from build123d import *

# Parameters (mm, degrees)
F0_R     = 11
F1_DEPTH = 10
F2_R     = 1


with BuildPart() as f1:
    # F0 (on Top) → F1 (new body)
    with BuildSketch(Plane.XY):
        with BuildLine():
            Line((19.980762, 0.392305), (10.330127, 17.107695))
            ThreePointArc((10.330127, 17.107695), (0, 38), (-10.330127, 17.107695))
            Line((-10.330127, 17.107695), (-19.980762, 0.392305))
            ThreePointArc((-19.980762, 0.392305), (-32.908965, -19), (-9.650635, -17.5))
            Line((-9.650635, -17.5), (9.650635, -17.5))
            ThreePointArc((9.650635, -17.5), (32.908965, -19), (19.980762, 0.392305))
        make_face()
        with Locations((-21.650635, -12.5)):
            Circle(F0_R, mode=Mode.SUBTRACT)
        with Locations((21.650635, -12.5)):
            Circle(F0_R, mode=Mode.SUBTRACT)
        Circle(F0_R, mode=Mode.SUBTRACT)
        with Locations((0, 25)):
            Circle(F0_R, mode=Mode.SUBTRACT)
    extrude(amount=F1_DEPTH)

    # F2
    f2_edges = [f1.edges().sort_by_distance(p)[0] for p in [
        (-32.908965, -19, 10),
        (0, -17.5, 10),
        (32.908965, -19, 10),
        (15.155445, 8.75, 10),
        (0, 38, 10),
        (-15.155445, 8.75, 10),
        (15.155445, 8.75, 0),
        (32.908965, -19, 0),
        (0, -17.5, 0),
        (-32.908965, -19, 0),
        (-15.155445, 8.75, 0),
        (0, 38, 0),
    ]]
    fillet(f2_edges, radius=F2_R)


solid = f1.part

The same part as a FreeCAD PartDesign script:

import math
import FreeCAD as App
import Part
import Sketcher

V = App.Vector
Q = App.Units.Quantity


def edges_at(feature, points):
    """Names of the edges that pass closest to the given points."""
    edges = feature.Shape.Edges
    near = lambda p: min(range(len(edges)), key=lambda i: edges[i].distToShape(Part.Vertex(*p))[0])
    return sorted({f"Edge{near(p) + 1}" for p in points})

doc = App.newDocument("Part")
body = doc.addObject("PartDesign::Body", "Body")

# Sketch on XY plane
sketch1 = body.newObject("Sketcher::SketchObject", "Sketch")
sketch1.AttachmentSupport = (doc.getObject("XY_Plane"), [""])
sketch1.MapMode = "FlatFace"
sketch1.addGeometry(Part.LineSegment(V(20, 0, 0), V(10, 17, 0)), False)
sketch1.addGeometry(Part.ArcOfCircle(Part.Circle(V(0, 25, 0), V(0, 0, 1), 13), math.radians(-37), math.radians(217)), False)
sketch1.addGeometry(Part.LineSegment(V(-10, 17, 0), V(-20, 0, 0)), False)
sketch1.addGeometry(Part.ArcOfCircle(Part.Circle(V(-22, -12, 0), V(0, 0, 1), 13), math.radians(83), math.radians(337)), False)
sketch1.addGeometry(Part.LineSegment(V(-10, -18, 0), V(10, -18, 0)), False)
sketch1.addGeometry(Part.ArcOfCircle(Part.Circle(V(22, -12, 0), V(0, 0, 1), 13), math.radians(-157), math.radians(97)), False)
sketch1.addGeometry(Part.Circle(V(-22, -12, 0), V(0, 0, 1), 11), False)
sketch1.addGeometry(Part.Circle(V(22, -12, 0), V(0, 0, 1), 11), False)
sketch1.addGeometry(Part.Circle(V(0, 0, 0), V(0, 0, 1), 11), False)
sketch1.addGeometry(Part.Circle(V(0, 25, 0), V(0, 0, 1), 11), False)
sketch1.addConstraint(Sketcher.Constraint("Coincident", 0, 2, 1, 1))
sketch1.addConstraint(Sketcher.Constraint("Coincident", 1, 2, 2, 1))
sketch1.addConstraint(Sketcher.Constraint("Coincident", 2, 2, 3, 1))
sketch1.addConstraint(Sketcher.Constraint("Coincident", 3, 2, 4, 1))
sketch1.addConstraint(Sketcher.Constraint("Coincident", 4, 2, 5, 1))
sketch1.addConstraint(Sketcher.Constraint("Coincident", 5, 2, 0, 1))
sketch1.addConstraint(Sketcher.Constraint("Horizontal", 4))
sketch1.addConstraint(Sketcher.Constraint("Coincident", 8, 3, -1, 1))
sketch1.addConstraint(Sketcher.Constraint("Coincident", 6, 3, 3, 3))
sketch1.addConstraint(Sketcher.Constraint("Coincident", 7, 3, 5, 3))
sketch1.addConstraint(Sketcher.Constraint("Coincident", 9, 3, 1, 3))
sketch1.addConstraint(Sketcher.Constraint("Equal", 1, 3))
sketch1.addConstraint(Sketcher.Constraint("Equal", 3, 5))
sketch1.addConstraint(Sketcher.Constraint("Equal", 6, 7))
sketch1.addConstraint(Sketcher.Constraint("Equal", 7, 8))
sketch1.addConstraint(Sketcher.Constraint("Equal", 8, 9))
sketch1.addConstraint(Sketcher.Constraint("Symmetric", 3, 3, 5, 3, -2))
sketch1.addConstraint(Sketcher.Constraint("Symmetric", 0, 2, 1, 2, -2))
sketch1.addConstraint(Sketcher.Constraint("Horizontal", 2, 2, 5, 2))
sketch1.addConstraint(Sketcher.Constraint("Diameter", 6, Q("22 mm")))
sketch1.addConstraint(Sketcher.Constraint("Radius", 1, Q("13 mm")))
sketch1.addConstraint(Sketcher.Constraint("Angle", 0, Q("120 deg")))
sketch1.addConstraint(Sketcher.Constraint("DistanceY", -1, 1, 1, 3, Q("25 mm")))
sketch1.addConstraint(Sketcher.Constraint("DistanceX", 3, 3, 3, 2, Q("12 mm")))
sketch1.addConstraint(Sketcher.Constraint("DistanceY", 3, 3, -1, 1, Q("12.5 mm")))
sketch1.addConstraint(Sketcher.Constraint("DistanceX", 4, 1, 4, 2, Q("19.30127 mm")))
sketch1.addConstraint(Sketcher.Constraint("Distance", 0, Q("19.30127 mm")))
pad1 = body.newObject("PartDesign::Pad", "Pad")
pad1.Profile = sketch1
pad1.Length = 10
doc.recompute()

fillet = body.newObject("PartDesign::Fillet", "Fillet")
fillet.Base = (pad1, edges_at(pad1, [
    (-32.909, -19, 10),
    (0, -17.5, 10),
    (32.909, -19, 10),
    (15.155, 8.75, 10),
    (0, 38, 10),
    (-15.155, 8.75, 10),
    (15.155, 8.75, 0),
    (32.909, -19, 0),
    (0, -17.5, 0),
    (-32.909, -19, 0),
    (-15.155, 8.75, 0),
    (0, 38, 0),
]))
fillet.Radius = 1

doc.recompute()
